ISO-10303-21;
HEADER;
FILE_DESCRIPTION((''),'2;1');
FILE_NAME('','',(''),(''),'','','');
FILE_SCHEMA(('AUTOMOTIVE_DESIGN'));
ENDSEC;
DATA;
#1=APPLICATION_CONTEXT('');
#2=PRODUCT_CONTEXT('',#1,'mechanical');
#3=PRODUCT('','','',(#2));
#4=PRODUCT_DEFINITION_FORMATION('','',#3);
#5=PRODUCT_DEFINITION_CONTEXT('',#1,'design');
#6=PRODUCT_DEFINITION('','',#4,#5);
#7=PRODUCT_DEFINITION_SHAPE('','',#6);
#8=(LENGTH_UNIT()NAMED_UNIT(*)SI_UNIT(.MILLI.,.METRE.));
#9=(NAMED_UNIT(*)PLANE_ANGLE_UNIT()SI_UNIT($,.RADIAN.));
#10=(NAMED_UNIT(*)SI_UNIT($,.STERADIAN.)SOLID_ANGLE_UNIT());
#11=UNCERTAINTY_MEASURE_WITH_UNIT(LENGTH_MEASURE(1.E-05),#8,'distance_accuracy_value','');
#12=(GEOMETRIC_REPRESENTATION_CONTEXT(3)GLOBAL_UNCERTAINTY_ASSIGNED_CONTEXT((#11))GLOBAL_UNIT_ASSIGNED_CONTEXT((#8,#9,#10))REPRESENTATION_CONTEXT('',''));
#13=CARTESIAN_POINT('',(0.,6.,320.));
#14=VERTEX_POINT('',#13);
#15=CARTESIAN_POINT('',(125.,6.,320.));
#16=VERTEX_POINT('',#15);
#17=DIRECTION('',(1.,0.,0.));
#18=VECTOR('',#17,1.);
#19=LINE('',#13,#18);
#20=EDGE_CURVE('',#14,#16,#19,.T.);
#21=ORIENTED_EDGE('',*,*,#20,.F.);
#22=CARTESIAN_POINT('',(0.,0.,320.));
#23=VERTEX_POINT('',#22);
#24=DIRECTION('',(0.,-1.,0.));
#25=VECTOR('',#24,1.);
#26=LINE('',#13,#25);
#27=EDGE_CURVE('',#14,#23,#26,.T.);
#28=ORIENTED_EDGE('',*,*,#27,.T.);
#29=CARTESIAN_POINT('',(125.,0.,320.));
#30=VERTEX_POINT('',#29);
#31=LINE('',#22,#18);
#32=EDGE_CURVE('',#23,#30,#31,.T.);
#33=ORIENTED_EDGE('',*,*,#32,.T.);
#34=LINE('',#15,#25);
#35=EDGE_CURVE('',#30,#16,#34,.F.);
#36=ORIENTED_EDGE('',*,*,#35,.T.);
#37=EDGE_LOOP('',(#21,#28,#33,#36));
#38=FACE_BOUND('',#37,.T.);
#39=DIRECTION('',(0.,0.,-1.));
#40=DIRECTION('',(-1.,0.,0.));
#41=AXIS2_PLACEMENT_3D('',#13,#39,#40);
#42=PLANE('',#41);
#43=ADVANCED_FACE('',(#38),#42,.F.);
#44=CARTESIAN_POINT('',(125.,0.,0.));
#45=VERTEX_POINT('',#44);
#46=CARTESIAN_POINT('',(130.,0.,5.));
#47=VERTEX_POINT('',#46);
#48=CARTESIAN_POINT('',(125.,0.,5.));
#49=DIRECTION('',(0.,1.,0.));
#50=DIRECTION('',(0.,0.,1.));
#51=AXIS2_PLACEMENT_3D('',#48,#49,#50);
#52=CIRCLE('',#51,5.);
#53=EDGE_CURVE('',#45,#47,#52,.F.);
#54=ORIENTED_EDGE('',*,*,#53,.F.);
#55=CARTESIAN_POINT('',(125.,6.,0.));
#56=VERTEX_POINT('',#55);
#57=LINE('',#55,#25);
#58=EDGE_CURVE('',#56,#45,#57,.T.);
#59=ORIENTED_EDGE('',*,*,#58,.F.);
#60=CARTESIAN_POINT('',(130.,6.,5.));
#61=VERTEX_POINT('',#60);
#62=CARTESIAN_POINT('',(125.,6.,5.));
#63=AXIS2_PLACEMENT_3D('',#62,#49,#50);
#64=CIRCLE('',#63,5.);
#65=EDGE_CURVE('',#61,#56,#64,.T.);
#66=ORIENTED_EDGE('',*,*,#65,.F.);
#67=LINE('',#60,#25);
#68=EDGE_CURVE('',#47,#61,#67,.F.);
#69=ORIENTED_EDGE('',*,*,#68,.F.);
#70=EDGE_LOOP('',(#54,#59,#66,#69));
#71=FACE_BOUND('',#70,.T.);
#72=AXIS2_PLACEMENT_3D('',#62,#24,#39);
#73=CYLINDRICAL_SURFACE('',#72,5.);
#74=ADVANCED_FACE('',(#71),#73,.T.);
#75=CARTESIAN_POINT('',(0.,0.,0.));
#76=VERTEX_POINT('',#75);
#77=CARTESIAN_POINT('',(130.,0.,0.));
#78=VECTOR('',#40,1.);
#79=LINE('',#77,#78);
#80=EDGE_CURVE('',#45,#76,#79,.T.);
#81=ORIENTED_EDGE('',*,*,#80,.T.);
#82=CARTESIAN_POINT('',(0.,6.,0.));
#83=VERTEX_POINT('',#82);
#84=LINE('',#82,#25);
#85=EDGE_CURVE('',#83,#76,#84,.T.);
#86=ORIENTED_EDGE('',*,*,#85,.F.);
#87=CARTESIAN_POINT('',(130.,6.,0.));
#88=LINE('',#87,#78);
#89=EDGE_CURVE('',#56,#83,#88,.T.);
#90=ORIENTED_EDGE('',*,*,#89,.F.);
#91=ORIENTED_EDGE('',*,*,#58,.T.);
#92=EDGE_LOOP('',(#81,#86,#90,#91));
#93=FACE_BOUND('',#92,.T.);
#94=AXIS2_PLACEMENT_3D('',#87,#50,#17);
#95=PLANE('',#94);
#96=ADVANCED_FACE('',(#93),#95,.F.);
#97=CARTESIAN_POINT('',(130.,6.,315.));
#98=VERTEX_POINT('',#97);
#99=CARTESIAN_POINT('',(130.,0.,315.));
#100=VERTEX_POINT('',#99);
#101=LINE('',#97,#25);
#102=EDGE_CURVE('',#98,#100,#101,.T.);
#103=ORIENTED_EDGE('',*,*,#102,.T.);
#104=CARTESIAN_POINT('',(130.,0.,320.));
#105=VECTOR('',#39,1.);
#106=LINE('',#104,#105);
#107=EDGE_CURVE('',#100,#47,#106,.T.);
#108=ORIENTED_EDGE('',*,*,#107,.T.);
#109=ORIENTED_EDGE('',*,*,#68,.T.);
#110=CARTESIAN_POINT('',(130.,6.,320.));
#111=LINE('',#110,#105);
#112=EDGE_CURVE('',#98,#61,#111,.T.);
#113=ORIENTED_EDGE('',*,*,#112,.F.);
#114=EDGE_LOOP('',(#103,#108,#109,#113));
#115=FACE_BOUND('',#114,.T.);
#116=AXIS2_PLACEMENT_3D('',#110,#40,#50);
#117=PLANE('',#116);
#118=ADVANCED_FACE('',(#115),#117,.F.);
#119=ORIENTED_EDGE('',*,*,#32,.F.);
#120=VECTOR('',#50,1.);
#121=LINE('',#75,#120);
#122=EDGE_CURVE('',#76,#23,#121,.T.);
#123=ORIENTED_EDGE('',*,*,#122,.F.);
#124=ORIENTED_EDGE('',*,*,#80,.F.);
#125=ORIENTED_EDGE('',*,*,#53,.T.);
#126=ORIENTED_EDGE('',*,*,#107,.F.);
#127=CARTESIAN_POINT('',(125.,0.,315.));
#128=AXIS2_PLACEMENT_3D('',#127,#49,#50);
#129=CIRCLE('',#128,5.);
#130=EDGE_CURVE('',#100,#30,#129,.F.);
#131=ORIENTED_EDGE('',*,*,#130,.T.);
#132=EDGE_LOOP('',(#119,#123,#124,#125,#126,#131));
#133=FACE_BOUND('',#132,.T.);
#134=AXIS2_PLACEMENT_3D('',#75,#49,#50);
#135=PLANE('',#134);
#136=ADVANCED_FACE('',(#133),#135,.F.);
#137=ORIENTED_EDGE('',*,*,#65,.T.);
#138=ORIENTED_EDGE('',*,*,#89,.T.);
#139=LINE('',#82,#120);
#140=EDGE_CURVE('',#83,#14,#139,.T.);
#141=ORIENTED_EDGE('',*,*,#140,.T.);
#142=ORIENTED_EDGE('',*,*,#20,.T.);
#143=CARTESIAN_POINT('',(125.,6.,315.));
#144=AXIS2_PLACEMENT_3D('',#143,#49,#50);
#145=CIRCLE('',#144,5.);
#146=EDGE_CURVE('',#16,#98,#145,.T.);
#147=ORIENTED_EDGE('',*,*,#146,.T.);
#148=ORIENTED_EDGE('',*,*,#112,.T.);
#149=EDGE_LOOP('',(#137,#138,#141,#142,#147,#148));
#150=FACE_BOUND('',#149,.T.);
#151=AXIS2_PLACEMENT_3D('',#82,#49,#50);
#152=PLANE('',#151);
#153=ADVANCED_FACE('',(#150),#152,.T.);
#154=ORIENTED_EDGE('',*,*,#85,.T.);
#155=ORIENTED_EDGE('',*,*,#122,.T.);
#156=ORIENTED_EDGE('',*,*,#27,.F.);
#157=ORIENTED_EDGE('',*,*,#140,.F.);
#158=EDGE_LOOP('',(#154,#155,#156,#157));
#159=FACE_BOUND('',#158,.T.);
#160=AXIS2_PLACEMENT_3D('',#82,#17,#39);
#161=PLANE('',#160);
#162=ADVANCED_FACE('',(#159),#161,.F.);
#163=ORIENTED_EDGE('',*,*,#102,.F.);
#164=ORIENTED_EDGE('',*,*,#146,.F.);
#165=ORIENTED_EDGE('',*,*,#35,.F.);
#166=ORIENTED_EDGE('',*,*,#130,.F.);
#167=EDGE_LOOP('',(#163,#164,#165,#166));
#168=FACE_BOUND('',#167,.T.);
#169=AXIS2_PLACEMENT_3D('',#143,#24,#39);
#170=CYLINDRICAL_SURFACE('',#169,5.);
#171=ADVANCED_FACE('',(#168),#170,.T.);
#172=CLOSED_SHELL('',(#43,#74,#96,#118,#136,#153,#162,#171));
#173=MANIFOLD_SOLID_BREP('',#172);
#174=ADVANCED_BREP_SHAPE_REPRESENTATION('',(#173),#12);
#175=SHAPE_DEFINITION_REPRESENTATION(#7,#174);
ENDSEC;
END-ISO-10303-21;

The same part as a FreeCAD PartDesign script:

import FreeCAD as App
import Part
import Sketcher

V = App.Vector


def edges_at(feature, points):
    """Names of the edges that pass closest to the given points."""
    edges = feature.Shape.Edges
    near = lambda p: min(range(len(edges)), key=lambda i: edges[i].distToShape(Part.Vertex(*p))[0])
    return sorted({f"Edge{near(p) + 1}" for p in points})


def add_polygon(sketch, points):
    """Adds a closed chain of lines whose ends are joined by coincident constraints."""
    first, n = sketch.GeometryCount, len(points)
    for a, b in zip(points, points[1:] + points[:1]):
        sketch.addGeometry(Part.LineSegment(App.Vector(*a, 0), App.Vector(*b, 0)), False)
    for i in range(n):
        sketch.addConstraint(Sketcher.Constraint("Coincident", first + i, 2, first + (i + 1) % n, 1))

doc = App.newDocument("Part")
body = doc.addObject("PartDesign::Body", "Body")

sketch1 = body.newObject("Sketcher::SketchObject", "Sketch")
sketch1.AttachmentSupport = (doc.getObject("XZ_Plane"), [""])
sketch1.MapMode = "FlatFace"
add_polygon(sketch1, [(0, 0), (0, 320), (130, 320), (130, 0)])
sketch1.addConstraint(Sketcher.Constraint("Vertical", 0))
sketch1.addConstraint(Sketcher.Constraint("Horizontal", 1))
sketch1.addConstraint(Sketcher.Constraint("Vertical", 2))
sketch1.addConstraint(Sketcher.Constraint("Horizontal", 3))
sketch1.addConstraint(Sketcher.Constraint("Coincident", 3, 2, -1, 1))
sketch1.addConstraint(Sketcher.Constraint("DistanceX", 1, 1, 1, 2, 130.0))
sketch1.addConstraint(Sketcher.Constraint("DistanceY", 0, 1, 0, 2, 320.0))
pad1 = body.newObject("PartDesign::Pad", "Pad")
pad1.Profile = sketch1
pad1.Length = 6
pad1.Reversed = True
doc.recompute()

fillet = body.newObject("PartDesign::Fillet", "Fillet")
fillet.Base = (pad1, edges_at(pad1, [(130, 3, 0), (130, 3, 320)]))
fillet.Radius = 5

doc.recompute()
